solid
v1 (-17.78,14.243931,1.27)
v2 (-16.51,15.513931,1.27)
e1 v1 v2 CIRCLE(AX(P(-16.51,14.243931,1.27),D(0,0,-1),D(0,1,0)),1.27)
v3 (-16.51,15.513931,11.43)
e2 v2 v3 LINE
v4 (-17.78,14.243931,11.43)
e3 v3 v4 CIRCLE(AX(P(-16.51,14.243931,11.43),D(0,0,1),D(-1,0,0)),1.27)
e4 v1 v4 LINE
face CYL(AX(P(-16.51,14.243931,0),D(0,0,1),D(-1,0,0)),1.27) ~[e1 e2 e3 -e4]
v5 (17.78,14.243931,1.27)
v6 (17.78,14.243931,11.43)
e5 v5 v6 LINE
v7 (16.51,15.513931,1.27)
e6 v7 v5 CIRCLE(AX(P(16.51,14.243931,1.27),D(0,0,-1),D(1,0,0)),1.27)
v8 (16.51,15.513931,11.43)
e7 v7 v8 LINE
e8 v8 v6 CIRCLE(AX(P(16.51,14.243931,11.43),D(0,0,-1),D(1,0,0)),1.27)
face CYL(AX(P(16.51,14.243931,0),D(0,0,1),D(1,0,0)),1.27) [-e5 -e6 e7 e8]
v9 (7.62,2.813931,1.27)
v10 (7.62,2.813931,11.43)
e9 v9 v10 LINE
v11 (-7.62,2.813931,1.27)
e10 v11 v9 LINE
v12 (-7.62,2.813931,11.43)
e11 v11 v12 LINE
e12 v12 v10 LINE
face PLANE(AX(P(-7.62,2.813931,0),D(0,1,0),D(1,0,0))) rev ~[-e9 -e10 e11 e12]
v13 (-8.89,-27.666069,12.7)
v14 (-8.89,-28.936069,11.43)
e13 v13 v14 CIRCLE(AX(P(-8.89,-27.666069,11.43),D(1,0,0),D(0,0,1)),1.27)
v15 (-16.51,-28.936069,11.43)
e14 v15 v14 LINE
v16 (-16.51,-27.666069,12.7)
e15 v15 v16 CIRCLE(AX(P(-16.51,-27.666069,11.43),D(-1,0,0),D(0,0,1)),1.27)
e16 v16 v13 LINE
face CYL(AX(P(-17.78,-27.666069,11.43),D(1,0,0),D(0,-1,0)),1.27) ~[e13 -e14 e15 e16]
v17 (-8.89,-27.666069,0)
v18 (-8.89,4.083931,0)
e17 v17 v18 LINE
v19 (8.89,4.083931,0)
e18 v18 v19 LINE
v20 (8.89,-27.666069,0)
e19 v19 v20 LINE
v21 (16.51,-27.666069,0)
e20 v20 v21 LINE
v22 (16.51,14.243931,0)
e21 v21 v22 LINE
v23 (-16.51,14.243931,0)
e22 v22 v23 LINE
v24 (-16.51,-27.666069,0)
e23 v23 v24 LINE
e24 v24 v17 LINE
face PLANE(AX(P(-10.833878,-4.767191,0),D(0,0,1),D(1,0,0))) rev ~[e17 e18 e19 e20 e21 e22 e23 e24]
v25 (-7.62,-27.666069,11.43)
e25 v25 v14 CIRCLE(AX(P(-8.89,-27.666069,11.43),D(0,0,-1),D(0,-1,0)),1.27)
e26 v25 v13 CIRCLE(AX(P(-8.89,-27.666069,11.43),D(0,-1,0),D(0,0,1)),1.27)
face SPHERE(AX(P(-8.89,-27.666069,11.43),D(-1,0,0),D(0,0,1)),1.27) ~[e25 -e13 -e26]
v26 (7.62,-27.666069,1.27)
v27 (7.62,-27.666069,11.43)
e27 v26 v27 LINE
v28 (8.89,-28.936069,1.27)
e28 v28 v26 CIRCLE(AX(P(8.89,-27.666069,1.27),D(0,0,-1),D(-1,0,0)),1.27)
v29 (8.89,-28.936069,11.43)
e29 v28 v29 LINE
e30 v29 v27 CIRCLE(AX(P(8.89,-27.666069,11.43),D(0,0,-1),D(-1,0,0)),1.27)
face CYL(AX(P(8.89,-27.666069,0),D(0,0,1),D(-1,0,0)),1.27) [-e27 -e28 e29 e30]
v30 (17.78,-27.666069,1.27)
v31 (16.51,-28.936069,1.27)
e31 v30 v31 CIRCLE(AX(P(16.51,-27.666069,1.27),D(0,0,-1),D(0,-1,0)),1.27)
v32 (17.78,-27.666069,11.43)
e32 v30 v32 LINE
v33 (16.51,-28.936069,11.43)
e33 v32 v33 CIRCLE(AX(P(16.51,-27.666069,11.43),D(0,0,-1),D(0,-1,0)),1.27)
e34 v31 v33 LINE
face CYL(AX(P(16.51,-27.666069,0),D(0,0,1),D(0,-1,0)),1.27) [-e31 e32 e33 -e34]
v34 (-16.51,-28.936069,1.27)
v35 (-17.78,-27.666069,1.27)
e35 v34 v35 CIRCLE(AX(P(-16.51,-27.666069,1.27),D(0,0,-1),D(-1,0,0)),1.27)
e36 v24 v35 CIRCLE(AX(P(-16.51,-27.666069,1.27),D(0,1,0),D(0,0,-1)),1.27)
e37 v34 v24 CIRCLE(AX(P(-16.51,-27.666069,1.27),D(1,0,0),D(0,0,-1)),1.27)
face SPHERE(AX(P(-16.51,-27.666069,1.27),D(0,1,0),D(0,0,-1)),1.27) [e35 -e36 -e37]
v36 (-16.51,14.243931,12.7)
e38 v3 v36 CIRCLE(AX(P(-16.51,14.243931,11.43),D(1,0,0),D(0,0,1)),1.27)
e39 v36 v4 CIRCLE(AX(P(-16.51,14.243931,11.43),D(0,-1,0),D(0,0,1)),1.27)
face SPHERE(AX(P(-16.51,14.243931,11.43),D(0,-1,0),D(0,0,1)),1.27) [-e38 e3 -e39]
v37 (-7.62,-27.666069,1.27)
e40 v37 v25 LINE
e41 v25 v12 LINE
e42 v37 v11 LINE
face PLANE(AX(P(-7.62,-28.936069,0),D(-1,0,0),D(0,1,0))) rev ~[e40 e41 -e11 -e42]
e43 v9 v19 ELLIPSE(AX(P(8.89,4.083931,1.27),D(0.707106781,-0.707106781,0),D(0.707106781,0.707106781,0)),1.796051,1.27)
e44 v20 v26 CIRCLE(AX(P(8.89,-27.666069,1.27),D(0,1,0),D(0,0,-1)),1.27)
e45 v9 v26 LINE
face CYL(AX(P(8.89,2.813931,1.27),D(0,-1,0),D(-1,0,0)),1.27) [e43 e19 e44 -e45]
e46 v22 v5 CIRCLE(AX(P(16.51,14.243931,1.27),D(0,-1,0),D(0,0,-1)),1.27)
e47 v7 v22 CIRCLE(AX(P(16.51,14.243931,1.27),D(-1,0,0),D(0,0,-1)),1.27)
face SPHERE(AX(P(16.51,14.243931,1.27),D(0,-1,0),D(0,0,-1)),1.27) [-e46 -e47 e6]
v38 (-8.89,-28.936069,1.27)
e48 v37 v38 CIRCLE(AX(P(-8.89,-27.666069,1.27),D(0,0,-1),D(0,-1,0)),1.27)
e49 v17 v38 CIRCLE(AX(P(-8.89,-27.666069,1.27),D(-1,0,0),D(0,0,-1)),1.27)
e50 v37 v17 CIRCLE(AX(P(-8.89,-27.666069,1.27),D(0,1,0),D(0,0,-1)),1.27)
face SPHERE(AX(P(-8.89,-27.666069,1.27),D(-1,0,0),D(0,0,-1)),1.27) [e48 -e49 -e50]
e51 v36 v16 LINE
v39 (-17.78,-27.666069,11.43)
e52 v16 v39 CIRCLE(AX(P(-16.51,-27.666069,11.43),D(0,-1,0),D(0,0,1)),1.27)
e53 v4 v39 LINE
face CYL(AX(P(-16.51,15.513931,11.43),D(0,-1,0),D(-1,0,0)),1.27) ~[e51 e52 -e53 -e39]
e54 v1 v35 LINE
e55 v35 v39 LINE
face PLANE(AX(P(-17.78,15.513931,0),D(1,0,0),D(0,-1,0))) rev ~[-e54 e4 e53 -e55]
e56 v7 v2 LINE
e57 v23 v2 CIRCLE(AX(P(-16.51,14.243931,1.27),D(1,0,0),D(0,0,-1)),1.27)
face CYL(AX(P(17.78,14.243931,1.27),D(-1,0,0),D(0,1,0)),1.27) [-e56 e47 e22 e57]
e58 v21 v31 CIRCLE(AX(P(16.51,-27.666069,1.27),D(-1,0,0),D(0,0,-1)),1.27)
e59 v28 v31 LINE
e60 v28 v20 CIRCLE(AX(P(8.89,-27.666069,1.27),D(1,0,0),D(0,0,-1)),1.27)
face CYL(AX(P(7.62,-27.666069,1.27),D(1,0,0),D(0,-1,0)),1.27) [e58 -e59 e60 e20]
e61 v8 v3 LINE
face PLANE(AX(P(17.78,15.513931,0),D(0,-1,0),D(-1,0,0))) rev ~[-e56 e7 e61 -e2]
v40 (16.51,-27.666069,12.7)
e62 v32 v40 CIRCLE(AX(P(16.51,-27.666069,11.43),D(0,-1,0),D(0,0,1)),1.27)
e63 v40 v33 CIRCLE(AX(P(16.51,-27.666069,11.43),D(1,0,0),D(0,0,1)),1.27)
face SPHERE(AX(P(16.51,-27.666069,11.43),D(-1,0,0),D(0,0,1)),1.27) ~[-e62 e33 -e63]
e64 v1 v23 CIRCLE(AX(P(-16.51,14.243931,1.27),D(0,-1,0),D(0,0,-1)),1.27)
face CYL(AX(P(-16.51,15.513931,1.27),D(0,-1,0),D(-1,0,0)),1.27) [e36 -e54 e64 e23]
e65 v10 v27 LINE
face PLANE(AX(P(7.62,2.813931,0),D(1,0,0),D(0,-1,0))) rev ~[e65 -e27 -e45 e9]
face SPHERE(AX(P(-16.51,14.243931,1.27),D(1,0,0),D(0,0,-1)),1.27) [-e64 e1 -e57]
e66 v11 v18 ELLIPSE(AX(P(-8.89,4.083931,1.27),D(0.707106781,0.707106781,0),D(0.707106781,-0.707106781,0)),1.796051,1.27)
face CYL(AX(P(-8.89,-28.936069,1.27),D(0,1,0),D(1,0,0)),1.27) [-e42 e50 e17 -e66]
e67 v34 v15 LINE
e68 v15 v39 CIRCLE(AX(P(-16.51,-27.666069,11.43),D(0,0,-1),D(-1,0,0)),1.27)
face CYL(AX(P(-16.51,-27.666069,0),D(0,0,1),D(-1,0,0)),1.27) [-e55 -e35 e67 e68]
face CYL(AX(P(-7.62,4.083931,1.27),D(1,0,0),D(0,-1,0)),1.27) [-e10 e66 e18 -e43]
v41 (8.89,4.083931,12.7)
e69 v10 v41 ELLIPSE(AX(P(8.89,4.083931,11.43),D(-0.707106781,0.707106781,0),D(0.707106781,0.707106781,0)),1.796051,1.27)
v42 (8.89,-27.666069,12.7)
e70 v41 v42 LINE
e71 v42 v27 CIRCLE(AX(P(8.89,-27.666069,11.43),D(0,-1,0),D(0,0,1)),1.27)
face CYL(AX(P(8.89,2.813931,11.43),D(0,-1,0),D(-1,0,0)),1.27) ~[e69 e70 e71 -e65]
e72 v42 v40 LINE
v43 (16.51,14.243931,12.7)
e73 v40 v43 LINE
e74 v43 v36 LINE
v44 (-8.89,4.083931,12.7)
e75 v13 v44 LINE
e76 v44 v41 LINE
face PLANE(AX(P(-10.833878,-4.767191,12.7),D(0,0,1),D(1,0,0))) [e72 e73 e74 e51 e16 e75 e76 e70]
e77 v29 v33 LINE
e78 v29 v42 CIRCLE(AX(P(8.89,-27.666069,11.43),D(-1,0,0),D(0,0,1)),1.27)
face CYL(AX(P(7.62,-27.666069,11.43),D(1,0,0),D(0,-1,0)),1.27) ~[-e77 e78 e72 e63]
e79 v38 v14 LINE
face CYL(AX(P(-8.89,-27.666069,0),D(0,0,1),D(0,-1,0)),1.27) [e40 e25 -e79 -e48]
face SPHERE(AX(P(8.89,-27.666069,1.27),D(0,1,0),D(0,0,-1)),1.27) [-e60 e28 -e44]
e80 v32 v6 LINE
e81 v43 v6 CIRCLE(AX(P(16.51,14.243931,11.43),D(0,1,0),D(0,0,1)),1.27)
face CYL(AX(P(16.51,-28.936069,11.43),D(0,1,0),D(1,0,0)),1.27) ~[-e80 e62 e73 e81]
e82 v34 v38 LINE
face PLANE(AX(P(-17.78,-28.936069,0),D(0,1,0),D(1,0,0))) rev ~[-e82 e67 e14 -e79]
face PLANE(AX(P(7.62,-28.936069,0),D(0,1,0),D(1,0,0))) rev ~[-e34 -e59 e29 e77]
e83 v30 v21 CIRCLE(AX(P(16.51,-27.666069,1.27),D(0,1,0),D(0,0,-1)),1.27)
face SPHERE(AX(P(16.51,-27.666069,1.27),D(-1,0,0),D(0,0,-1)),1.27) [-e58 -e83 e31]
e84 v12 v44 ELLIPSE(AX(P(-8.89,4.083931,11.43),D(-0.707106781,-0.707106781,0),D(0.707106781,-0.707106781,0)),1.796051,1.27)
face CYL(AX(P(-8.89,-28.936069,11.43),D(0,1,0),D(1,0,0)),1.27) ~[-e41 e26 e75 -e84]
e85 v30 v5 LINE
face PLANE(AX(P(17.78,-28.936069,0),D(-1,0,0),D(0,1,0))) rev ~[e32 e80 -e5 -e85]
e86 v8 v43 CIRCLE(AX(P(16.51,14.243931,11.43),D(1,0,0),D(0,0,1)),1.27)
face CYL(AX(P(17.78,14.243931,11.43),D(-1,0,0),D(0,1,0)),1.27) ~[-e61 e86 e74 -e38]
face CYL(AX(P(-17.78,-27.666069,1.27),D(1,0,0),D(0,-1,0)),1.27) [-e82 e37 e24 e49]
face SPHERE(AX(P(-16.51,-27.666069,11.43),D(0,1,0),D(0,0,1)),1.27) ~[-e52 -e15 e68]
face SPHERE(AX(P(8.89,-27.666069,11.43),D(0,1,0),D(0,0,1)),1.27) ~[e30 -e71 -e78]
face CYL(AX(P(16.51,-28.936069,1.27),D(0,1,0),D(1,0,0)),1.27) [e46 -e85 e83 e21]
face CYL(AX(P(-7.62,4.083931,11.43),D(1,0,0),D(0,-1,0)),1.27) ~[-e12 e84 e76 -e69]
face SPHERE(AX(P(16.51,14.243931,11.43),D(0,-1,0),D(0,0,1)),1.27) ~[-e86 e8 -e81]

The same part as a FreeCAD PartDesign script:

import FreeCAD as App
import Part
import Sketcher
from FreeCAD import Vector
Q = App.Units.Quantity


def edges_at(feature, points):
    """Names of the edges that pass closest to the given points."""
    edges = feature.Shape.Edges
    near = lambda p: min(range(len(edges)), key=lambda i: edges[i].distToShape(Part.Vertex(*p))[0])
    return sorted({f"Edge{near(p) + 1}" for p in points})


def add_polygon(sketch, points):
    """Adds a closed chain of lines whose ends are joined by coincident constraints."""
    first, n = sketch.GeometryCount, len(points)
    for a, b in zip(points, points[1:] + points[:1]):
        sketch.addGeometry(Part.LineSegment(App.Vector(*a, 0), App.Vector(*b, 0)), False)
    for i in range(n):
        sketch.addConstraint(Sketcher.Constraint("Coincident", first + i, 2, first + (i + 1) % n, 1))

doc = App.newDocument("Part")
body = doc.addObject("PartDesign::Body", "Body")

sketch1 = body.newObject("Sketcher::SketchObject", "Sketch")
sketch1.AttachmentSupport = (doc.getObject("XY_Plane"), [""])
sketch1.MapMode = "FlatFace"
add_polygon(sketch1, [(-17.78, 15.513931), (-17.78, -28.936069), (-7.62, -28.936069), (-7.62, 2.813931), (7.62, 2.813931), (7.62, -28.936069), (17.78, -28.936069), (17.78, 15.513931)])
sketch1.addConstraint([
    Sketcher.Constraint("Vertical", 0),
    Sketcher.Constraint("Horizontal", 1),
    Sketcher.Constraint("Vertical", 2),
    Sketcher.Constraint("Horizontal", 3),
    Sketcher.Constraint("Vertical", 4),
    Sketcher.Constraint("Horizontal", 5),
    Sketcher.Constraint("Vertical", 6),
    Sketcher.Constraint("Horizontal", 7),
    Sketcher.Constraint("Symmetric", 1, 2, 4, 2, -2),
    Sketcher.Constraint("Equal", 1, 5),
    Sketcher.Constraint("DistanceX", 1, 1, 1, 2, Q("0.4 in")),
    Sketcher.Constraint("DistanceX", 3, 1, 3, 2, Q("0.6 in")),
    Sketcher.Constraint("DistanceY", 0, 2, 0, 1, Q("1.75 in")),
    Sketcher.Constraint("DistanceY", 2, 1, 2, 2, Q("1.25 in")),
    Sketcher.Constraint("DistanceY", 0, 2, -1, 1, Q("28.936069 mm")),
])
pad1 = body.newObject("PartDesign::Pad", "Pad")
pad1.Profile = sketch1
pad1.Length = Q("0.5 in")
doc.recompute()

fillet = body.newObject("PartDesign::Fillet", "Fillet")
fillet.Base = (pad1, edges_at(pad1, [
    (-17.78, -6.711, 12.7),
    (0, 2.814, 12.7),
    (7.62, -13.061, 12.7),
    (12.7, -28.936, 12.7),
    (17.78, -6.711, 12.7),
    (0, 15.514, 12.7),
    (-12.7, -28.936, 12.7),
    (-7.62, -13.061, 12.7),
    (0, 2.814, 0),
    (7.62, -13.061, 0),
    (12.7, -28.936, 0),
    (17.78, -6.711, 0),
    (0, 15.514, 0),
    (-17.78, -6.711, 0),
    (-12.7, -28.936, 0),
    (-7.62, -13.061, 0),
    (17.78, -28.936, 6.35),
    (7.62, -28.936, 6.35),
    (-7.62, -28.936, 6.35),
    (-17.78, -28.936, 6.35),
    (-17.78, 15.514, 6.35),
    (17.78, 15.514, 6.35),
]))
fillet.Radius = Q("0.05 in")

doc.recompute()
